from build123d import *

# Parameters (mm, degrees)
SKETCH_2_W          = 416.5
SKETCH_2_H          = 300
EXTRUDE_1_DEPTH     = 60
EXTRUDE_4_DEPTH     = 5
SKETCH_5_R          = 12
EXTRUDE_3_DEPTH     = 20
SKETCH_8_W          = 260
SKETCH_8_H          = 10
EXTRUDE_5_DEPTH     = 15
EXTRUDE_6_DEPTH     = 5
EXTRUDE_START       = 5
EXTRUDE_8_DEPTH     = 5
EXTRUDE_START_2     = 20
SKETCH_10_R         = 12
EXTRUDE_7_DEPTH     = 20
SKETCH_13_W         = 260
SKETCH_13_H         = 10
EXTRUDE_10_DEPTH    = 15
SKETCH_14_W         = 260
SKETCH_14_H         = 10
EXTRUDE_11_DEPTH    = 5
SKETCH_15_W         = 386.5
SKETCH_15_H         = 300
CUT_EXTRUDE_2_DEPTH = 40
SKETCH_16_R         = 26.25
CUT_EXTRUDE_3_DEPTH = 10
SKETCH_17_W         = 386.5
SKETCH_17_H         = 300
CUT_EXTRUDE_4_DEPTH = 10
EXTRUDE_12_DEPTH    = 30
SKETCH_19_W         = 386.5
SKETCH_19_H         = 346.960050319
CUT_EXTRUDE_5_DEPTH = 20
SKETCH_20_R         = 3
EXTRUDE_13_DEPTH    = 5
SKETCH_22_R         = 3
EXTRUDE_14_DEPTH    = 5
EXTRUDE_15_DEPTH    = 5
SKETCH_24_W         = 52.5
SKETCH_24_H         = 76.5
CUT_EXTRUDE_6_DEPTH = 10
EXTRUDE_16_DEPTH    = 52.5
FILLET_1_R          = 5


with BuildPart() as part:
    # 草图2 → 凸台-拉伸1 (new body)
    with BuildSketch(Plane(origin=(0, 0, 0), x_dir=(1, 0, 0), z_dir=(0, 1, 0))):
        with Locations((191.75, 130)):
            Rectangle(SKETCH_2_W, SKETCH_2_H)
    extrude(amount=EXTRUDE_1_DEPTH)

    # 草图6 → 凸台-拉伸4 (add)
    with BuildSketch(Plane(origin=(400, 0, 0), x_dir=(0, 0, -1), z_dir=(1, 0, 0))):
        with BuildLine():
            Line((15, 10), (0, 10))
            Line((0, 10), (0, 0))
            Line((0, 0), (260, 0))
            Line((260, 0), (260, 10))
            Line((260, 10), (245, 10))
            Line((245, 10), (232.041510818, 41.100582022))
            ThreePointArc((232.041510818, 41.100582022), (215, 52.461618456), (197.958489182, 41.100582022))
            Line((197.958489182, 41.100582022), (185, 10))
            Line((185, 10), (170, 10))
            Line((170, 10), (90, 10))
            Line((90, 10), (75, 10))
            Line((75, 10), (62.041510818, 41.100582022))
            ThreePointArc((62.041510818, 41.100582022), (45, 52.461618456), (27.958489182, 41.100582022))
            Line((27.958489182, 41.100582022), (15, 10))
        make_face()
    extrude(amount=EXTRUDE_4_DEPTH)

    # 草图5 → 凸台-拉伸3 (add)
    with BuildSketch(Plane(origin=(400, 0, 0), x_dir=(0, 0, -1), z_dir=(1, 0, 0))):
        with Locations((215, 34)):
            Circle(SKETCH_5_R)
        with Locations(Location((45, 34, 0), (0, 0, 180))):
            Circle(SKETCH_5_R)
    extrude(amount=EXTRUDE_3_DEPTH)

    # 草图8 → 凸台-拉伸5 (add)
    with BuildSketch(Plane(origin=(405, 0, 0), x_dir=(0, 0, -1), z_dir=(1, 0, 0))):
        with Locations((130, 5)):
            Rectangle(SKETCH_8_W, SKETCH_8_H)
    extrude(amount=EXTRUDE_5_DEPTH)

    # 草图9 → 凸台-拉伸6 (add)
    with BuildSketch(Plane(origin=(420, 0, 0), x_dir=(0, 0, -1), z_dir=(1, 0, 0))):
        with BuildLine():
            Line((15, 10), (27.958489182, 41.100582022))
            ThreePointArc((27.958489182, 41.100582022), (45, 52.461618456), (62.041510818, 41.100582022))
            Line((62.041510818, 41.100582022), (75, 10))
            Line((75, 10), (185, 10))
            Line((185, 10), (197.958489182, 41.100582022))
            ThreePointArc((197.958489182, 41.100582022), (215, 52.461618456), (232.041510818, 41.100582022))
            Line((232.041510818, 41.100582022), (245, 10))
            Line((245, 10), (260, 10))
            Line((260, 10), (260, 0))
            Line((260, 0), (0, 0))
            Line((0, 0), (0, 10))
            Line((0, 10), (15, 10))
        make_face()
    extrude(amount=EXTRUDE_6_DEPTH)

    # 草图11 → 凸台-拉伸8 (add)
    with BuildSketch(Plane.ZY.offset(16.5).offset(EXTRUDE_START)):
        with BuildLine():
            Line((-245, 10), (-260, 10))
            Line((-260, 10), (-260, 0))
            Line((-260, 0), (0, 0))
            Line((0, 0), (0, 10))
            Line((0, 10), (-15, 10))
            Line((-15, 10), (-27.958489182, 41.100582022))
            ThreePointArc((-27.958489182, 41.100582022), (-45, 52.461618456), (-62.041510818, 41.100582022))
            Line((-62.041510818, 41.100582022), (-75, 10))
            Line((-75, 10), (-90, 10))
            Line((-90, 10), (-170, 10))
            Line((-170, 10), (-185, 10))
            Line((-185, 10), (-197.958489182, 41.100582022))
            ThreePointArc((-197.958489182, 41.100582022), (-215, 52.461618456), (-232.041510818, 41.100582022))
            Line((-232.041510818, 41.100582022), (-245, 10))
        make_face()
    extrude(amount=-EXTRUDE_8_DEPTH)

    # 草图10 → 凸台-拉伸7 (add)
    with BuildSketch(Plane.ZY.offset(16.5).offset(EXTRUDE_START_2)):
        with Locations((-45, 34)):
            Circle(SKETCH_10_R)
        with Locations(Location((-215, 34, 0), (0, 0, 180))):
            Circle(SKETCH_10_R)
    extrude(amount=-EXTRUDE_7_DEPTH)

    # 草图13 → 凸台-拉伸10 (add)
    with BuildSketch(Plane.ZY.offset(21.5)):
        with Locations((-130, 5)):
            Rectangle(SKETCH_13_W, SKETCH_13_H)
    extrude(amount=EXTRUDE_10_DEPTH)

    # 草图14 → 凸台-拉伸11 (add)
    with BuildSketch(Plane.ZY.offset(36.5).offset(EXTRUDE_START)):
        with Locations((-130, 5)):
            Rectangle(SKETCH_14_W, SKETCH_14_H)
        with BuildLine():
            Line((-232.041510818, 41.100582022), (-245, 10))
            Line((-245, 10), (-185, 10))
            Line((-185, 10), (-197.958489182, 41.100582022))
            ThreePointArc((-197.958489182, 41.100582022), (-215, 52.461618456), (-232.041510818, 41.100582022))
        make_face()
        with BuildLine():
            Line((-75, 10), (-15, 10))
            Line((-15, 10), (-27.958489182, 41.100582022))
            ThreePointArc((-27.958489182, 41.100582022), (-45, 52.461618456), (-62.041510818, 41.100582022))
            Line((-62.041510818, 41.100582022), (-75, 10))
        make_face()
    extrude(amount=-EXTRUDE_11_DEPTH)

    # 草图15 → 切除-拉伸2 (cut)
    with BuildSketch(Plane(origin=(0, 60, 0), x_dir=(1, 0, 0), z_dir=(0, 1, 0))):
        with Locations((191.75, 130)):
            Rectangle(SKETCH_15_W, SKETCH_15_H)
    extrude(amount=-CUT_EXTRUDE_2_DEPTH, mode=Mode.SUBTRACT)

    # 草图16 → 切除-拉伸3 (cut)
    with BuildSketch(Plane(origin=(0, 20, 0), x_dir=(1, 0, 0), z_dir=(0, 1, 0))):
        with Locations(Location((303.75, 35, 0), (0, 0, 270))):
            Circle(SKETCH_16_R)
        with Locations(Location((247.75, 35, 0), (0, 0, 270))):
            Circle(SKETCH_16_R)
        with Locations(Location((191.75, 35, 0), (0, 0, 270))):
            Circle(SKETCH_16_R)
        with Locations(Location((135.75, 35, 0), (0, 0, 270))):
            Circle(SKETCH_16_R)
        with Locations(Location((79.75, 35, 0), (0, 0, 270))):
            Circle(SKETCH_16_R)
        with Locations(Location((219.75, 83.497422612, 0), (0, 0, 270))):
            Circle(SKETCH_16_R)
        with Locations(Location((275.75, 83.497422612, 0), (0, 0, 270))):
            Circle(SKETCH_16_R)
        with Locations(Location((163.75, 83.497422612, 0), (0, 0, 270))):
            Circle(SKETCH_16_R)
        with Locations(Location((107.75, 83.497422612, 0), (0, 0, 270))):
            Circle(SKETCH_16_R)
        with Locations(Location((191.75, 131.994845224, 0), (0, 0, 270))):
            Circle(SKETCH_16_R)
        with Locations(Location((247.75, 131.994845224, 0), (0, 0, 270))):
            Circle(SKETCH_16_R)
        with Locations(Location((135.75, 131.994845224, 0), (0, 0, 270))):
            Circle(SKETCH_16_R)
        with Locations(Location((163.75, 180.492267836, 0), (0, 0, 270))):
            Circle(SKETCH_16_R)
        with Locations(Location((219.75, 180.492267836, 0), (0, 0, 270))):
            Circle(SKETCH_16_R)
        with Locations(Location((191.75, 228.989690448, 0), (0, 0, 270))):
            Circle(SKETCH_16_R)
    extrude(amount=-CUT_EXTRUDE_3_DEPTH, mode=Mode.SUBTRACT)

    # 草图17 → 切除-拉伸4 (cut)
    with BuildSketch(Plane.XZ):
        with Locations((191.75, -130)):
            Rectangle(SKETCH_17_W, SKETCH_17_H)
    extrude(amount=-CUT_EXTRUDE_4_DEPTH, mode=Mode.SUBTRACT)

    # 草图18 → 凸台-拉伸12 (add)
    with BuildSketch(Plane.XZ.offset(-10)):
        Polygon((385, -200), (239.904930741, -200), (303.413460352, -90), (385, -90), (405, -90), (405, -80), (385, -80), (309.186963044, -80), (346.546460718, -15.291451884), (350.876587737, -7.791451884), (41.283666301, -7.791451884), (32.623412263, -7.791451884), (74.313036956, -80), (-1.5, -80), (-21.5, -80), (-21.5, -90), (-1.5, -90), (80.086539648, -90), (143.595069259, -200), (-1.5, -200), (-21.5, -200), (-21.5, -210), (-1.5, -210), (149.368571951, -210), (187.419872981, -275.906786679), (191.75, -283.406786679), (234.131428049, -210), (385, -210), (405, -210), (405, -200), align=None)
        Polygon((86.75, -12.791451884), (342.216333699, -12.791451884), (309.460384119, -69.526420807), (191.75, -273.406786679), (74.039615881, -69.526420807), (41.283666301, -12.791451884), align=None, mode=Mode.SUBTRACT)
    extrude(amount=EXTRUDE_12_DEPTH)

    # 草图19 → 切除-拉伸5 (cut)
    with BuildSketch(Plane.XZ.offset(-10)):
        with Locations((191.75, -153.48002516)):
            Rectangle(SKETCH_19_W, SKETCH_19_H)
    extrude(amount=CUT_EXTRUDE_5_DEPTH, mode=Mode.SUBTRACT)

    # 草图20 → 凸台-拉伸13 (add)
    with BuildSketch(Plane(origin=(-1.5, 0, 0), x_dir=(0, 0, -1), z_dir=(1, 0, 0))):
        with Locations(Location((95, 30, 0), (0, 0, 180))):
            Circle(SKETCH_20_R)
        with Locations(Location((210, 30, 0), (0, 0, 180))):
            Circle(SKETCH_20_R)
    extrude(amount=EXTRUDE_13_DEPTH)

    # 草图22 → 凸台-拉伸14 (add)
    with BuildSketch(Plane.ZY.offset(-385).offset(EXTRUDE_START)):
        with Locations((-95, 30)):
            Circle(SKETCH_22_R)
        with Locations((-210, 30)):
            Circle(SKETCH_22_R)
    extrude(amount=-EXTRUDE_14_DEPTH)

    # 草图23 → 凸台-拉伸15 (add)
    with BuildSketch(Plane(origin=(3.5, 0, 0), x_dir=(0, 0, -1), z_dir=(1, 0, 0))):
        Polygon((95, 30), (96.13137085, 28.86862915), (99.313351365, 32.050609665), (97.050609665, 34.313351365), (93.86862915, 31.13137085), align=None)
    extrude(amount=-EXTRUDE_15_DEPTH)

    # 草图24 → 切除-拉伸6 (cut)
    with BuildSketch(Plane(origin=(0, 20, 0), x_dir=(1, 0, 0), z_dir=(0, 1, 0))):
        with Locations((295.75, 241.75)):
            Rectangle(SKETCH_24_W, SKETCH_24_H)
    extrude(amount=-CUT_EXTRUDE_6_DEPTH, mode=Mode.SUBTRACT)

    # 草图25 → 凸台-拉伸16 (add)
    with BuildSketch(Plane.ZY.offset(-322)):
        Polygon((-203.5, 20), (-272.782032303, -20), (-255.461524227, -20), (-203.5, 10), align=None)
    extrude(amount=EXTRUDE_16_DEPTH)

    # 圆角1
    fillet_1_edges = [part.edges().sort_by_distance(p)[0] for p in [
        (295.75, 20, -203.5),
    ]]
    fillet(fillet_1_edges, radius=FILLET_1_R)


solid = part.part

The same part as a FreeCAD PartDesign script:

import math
import FreeCAD as App
import Part
import Sketcher
from FreeCAD import Vector
Q = App.Units.Quantity


def edges_at(feature, points):
    """Names of the edges that pass closest to the given points."""
    edges = feature.Shape.Edges
    near = lambda p: min(range(len(edges)), key=lambda i: edges[i].distToShape(Part.Vertex(*p))[0])
    return sorted({f"Edge{near(p) + 1}" for p in points})


def add_polygon(sketch, points):
    """Adds a closed chain of lines whose ends are joined by coincident constraints."""
    first, n = sketch.GeometryCount, len(points)
    for a, b in zip(points, points[1:] + points[:1]):
        sketch.addGeometry(Part.LineSegment(App.Vector(*a, 0), App.Vector(*b, 0)), False)
    for i in range(n):
        sketch.addConstraint(Sketcher.Constraint("Coincident", first + i, 2, first + (i + 1) % n, 1))

doc = App.newDocument("Part")
body = doc.addObject("PartDesign::Body", "Body")

# Sketch on XZ plane
sketch1 = doc.addObject("Sketcher::SketchObject", "Sketch")
body.addObject(sketch1)
sketch1.AttachmentSupport = (doc.XZ_Plane, [""])
sketch1.MapMode = "FlatFace"
add_polygon(sketch1, [(-16, -280), (-16, 20), (400, 20), (400, -280)])  # lines 0-3
sketch1.addConstraint([
    Sketcher.Constraint("Vertical", 0),
    Sketcher.Constraint("Horizontal", 1),
    Sketcher.Constraint("Vertical", 2),
    Sketcher.Constraint("Horizontal", 3),
    Sketcher.Constraint("DistanceY", 0, 1, 0, 2, 300.0),
    Sketcher.Constraint("DistanceX", 1, 1, 1, 2, 416.5),
    Sketcher.Constraint("DistanceY", -1, 1, 0, 2, 20.0),
    Sketcher.Constraint("DistanceX", -1, 1, 1, 2, 400.0),
])
pad1 = doc.addObject("PartDesign::Pad", "Pad")
body.addObject(pad1)
pad1.Profile = sketch1
pad1.Length = 60
pad1.Reversed = True

# Sketch on YZ plane
sketch2 = doc.addObject("Sketcher::SketchObject", "Sketch001")
body.addObject(sketch2)
sketch2.AttachmentSupport = (doc.YZ_Plane, [""])
sketch2.MapMode = "FlatFace"
sketch2.AttachmentOffset = App.Placement(Vector(0, 0, 400), App.Rotation())
sketch2.addGeometry([
    Part.LineSegment(Vector(10, -15, 0), Vector(10, 0, 0)),  # 0
    Part.LineSegment(Vector(10, 0, 0), Vector(0, 0, 0)),  # 1
    Part.LineSegment(Vector(0, 0, 0), Vector(0, -260, 0)),  # 2
    Part.LineSegment(Vector(0, -260, 0), Vector(10, -260, 0)),  # 3
    Part.LineSegment(Vector(10, -260, 0), Vector(10, -245, 0)),  # 4
    Part.LineSegment(Vector(10, -245, 0), Vector(41, -232, 0)),  # 5
    Part.ArcOfCircle(Part.Circle(Vector(34, -215, 0), Vector(0, 0, 1), 18), math.radians(-67), math.radians(67)),  # 6
    Part.LineSegment(Vector(41, -198, 0), Vector(10, -185, 0)),  # 7
    Part.LineSegment(Vector(10, -185, 0), Vector(10, -75, 0)),  # 8
    Part.LineSegment(Vector(10, -75, 0), Vector(41, -62, 0)),  # 9
    Part.ArcOfCircle(Part.Circle(Vector(34, -45, 0), Vector(0, 0, 1), 18), math.radians(-67), math.radians(67)),  # 10
    Part.LineSegment(Vector(41, -28, 0), Vector(10, -15, 0)),  # 11
], False)
sketch2.addConstraint([
    Sketcher.Constraint("Coincident", 0, 2, 1, 1),
    Sketcher.Constraint("Coincident", 1, 2, 2, 1),
    Sketcher.Constraint("Coincident", 2, 2, 3, 1),
    Sketcher.Constraint("Coincident", 3, 2, 4, 1),
    Sketcher.Constraint("Coincident", 4, 2, 5, 1),
    Sketcher.Constraint("Tangent", 5, 2, 6, 1),
    Sketcher.Constraint("Tangent", 6, 2, 7, 1),
    Sketcher.Constraint("Coincident", 7, 2, 8, 1),
    Sketcher.Constraint("Coincident", 8, 2, 9, 1),
    Sketcher.Constraint("Tangent", 9, 2, 10, 1),
    Sketcher.Constraint("Tangent", 10, 2, 11, 1),
    Sketcher.Constraint("Coincident", 11, 2, 0, 1),
    Sketcher.Constraint("Vertical", 0),
    Sketcher.Constraint("Horizontal", 1),
    Sketcher.Constraint("Vertical", 2),
    Sketcher.Constraint("Horizontal", 3),
    Sketcher.Constraint("Vertical", 4),
    Sketcher.Constraint("Vertical", 8),
    Sketcher.Constraint("Coincident", 1, 2, -1, 1),
    Sketcher.Constraint("Equal", 6, 10),
    Sketcher.Constraint("Parallel", 5, 9),
    Sketcher.Constraint("Parallel", 7, 11),
    Sketcher.Constraint("Vertical", 6, 3, 10, 3),
    Sketcher.Constraint("Vertical", 0, 2, 3, 2),
    Sketcher.Constraint("Vertical", 5, 2, 6, 2),
    Sketcher.Constraint("Vertical", 4, 2, 7, 2),
    Sketcher.Constraint("Equal", 0, 4),
    Sketcher.Constraint("DistanceX", 1, 2, 1, 1, 10.0),
    Sketcher.Constraint("DistanceY", 0, 1, 0, 2, 15.0),
    Sketcher.Constraint("DistanceY", 2, 2, 2, 1, 260.0),
    Sketcher.Constraint("DistanceY", 8, 1, 8, 2, 110.0),
    Sketcher.Constraint("DistanceX", -1, 1, 6, 3, 34.0),
    Sketcher.Constraint("Radius", 6, 18.461618),
])
pad2 = doc.addObject("PartDesign::Pad", "Pad001")
body.addObject(pad2)
pad2.Profile = sketch2
pad2.Length = 5

# Sketch on YZ plane
sketch3 = doc.addObject("Sketcher::SketchObject", "Sketch002")
body.addObject(sketch3)
sketch3.AttachmentSupport = (doc.YZ_Plane, [""])
sketch3.MapMode = "FlatFace"
sketch3.AttachmentOffset = App.Placement(Vector(0, 0, 400), App.Rotation())
sketch3.addGeometry([
    Part.Circle(Vector(34, -215, 0), Vector(0, 0, 1), 12),
    Part.Circle(Vector(34, -45, 0), Vector(0, 0, 1), 12),
], False)
sketch3.addConstraint([
    Sketcher.Constraint("Equal", 0, 1),
    Sketcher.Constraint("Vertical", 0, 3, 1, 3),
    Sketcher.Constraint("Diameter", 0, 24.0),
    Sketcher.Constraint("DistanceX", -1, 1, 0, 3, 34.0),
    Sketcher.Constraint("DistanceY", 0, 3, -1, 1, 215.0),
    Sketcher.Constraint("DistanceY", 1, 3, -1, 1, 45.0),
])
pad3 = doc.addObject("PartDesign::Pad", "Pad002")
body.addObject(pad3)
pad3.Profile = sketch3
pad3.Length = 20

# Sketch on YZ plane
sketch4 = doc.addObject("Sketcher::SketchObject", "Sketch003")
body.addObject(sketch4)
sketch4.AttachmentSupport = (doc.YZ_Plane, [""])
sketch4.MapMode = "FlatFace"
sketch4.AttachmentOffset = App.Placement(Vector(0, 0, 405), App.Rotation())
add_polygon(sketch4, [(10, 0), (0, 0), (0, -260), (10, -260)])  # lines 0-3
sketch4.addConstraint([
    Sketcher.Constraint("Horizontal", 0),
    Sketcher.Constraint("Vertical", 1),
    Sketcher.Constraint("Horizontal", 2),
    Sketcher.Constraint("Vertical", 3),
    Sketcher.Constraint("Coincident", 0, 2, -1, 1),
    Sketcher.Constraint("DistanceX", 0, 2, 0, 1, 10.0),
    Sketcher.Constraint("DistanceY", 1, 2, 1, 1, 260.0),
])
pad4 = doc.addObject("PartDesign::Pad", "Pad003")
body.addObject(pad4)
pad4.Profile = sketch4
pad4.Length = 15

# Sketch on YZ plane
sketch5 = doc.addObject("Sketcher::SketchObject", "Sketch004")
body.addObject(sketch5)
sketch5.AttachmentSupport = (doc.YZ_Plane, [""])
sketch5.MapMode = "FlatFace"
sketch5.AttachmentOffset = App.Placement(Vector(0, 0, 420), App.Rotation())
sketch5.addGeometry([
    Part.LineSegment(Vector(41, -28, 0), Vector(10, -15, 0)),  # 0
    Part.LineSegment(Vector(10, -15, 0), Vector(10, 0, 0)),  # 1
    Part.LineSegment(Vector(10, 0, 0), Vector(0, 0, 0)),  # 2
    Part.LineSegment(Vector(0, 0, 0), Vector(0, -260, 0)),  # 3
    Part.LineSegment(Vector(0, -260, 0), Vector(10, -260, 0)),  # 4
    Part.LineSegment(Vector(10, -260, 0), Vector(10, -245, 0)),  # 5
    Part.LineSegment(Vector(10, -245, 0), Vector(41, -232, 0)),  # 6
    Part.ArcOfCircle(Part.Circle(Vector(34, -215, 0), Vector(0, 0, 1), 18), math.radians(-67), math.radians(67)),  # 7
    Part.LineSegment(Vector(41, -198, 0), Vector(10, -185, 0)),  # 8
    Part.LineSegment(Vector(10, -185, 0), Vector(10, -75, 0)),  # 9
    Part.LineSegment(Vector(10, -75, 0), Vector(41, -62, 0)),  # 10
    Part.ArcOfCircle(Part.Circle(Vector(34, -45, 0), Vector(0, 0, 1), 18), math.radians(-67), math.radians(67)),  # 11
], False)
sketch5.addConstraint([
    Sketcher.Constraint("Coincident", 0, 2, 1, 1),
    Sketcher.Constraint("Coincident", 1, 2, 2, 1),
    Sketcher.Constraint("Coincident", 2, 2, 3, 1),
    Sketcher.Constraint("Coincident", 3, 2, 4, 1),
    Sketcher.Constraint("Coincident", 4, 2, 5, 1),
    Sketcher.Constraint("Coincident", 5, 2, 6, 1),
    Sketcher.Constraint("Tangent", 6, 2, 7, 1),
    Sketcher.Constraint("Tangent", 7, 2, 8, 1),
    Sketcher.Constraint("Coincident", 8, 2, 9, 1),
    Sketcher.Constraint("Coincident", 9, 2, 10, 1),
    Sketcher.Constraint("Tangent", 10, 2, 11, 1),
    Sketcher.Constraint("Tangent", 11, 2, 0, 1),
    Sketcher.Constraint("Vertical", 1),
    Sketcher.Constraint("Horizontal", 2),
    Sketcher.Constraint("Vertical", 3),
    Sketcher.Constraint("Horizontal", 4),
    Sketcher.Constraint("Vertical", 5),
    Sketcher.Constraint("Vertical", 9),
    Sketcher.Constraint("Coincident", 2, 2, -1, 1),
    Sketcher.Constraint("Equal", 7, 11),
    Sketcher.Constraint("Parallel", 0, 8),
    Sketcher.Constraint("Parallel", 6, 10),
    Sketcher.Constraint("Vertical", 7, 3, 11, 3),
    Sketcher.Constraint("Vertical", 1, 2, 4, 2),
    Sketcher.Constraint("Vertical", 6, 2, 7, 2),
    Sketcher.Constraint("Vertical", 5, 2, 8, 2),
    Sketcher.Constraint("Equal", 1, 5),
    Sketcher.Constraint("DistanceX", 2, 2, 2, 1, 10.0),
    Sketcher.Constraint("DistanceY", 1, 1, 1, 2, 15.0),
    Sketcher.Constraint("DistanceY", 3, 2, 3, 1, 260.0),
    Sketcher.Constraint("DistanceY", 9, 1, 9, 2, 110.0),
    Sketcher.Constraint("DistanceX", -1, 1, 7, 3, 34.0),
    Sketcher.Constraint("Radius", 7, 18.461618),
])
pad5 = doc.addObject("PartDesign::Pad", "Pad004")
body.addObject(pad5)
pad5.Profile = sketch5
pad5.Length = 5

# Sketch on YZ plane
sketch6 = doc.addObject("Sketcher::SketchObject", "Sketch005")
body.addObject(sketch6)
sketch6.AttachmentSupport = (doc.YZ_Plane, [""])
sketch6.MapMode = "FlatFace"
sketch6.AttachmentOffset = App.Placement(Vector(0, 0, -21.5), App.Rotation())
sketch6.addGeometry([
    Part.LineSegment(Vector(10, -245, 0), Vector(10, -260, 0)),  # 0
    Part.LineSegment(Vector(10, -260, 0), Vector(0, -260, 0)),  # 1
    Part.LineSegment(Vector(0, -260, 0), Vector(0, 0, 0)),  # 2
    Part.LineSegment(Vector(0, 0, 0), Vector(10, 0, 0)),  # 3
    Part.LineSegment(Vector(10, 0, 0), Vector(10, -15, 0)),  # 4
    Part.LineSegment(Vector(10, -15, 0), Vector(41, -28, 0)),  # 5
    Part.ArcOfCircle(Part.Circle(Vector(34, -45, 0), Vector(0, 0, 1), 18), math.radians(-67), math.radians(67)),  # 6
    Part.LineSegment(Vector(41, -62, 0), Vector(10, -75, 0)),  # 7
    Part.LineSegment(Vector(10, -75, 0), Vector(10, -185, 0)),  # 8
    Part.LineSegment(Vector(10, -185, 0), Vector(41, -198, 0)),  # 9
    Part.ArcOfCircle(Part.Circle(Vector(34, -215, 0), Vector(0, 0, 1), 18), math.radians(-67), math.radians(67)),  # 10
    Part.LineSegment(Vector(41, -232, 0), Vector(10, -245, 0)),  # 11
], False)
sketch6.addConstraint([
    Sketcher.Constraint("Coincident", 0, 2, 1, 1),
    Sketcher.Constraint("Coincident", 1, 2, 2, 1),
    Sketcher.Constraint("Coincident", 2, 2, 3, 1),
    Sketcher.Constraint("Coincident", 3, 2, 4, 1),
    Sketcher.Constraint("Coincident", 4, 2, 5, 1),
    Sketcher.Constraint("Tangent", 5, 2, 6, 2),
    Sketcher.Constraint("Tangent", 6, 1, 7, 1),
    Sketcher.Constraint("Coincident", 7, 2, 8, 1),
    Sketcher.Constraint("Coincident", 8, 2, 9, 1),
    Sketcher.Constraint("Tangent", 9, 2, 10, 2),
    Sketcher.Constraint("Tangent", 10, 1, 11, 1),
    Sketcher.Constraint("Coincident", 11, 2, 0, 1),
    Sketcher.Constraint("Vertical", 0),
    Sketcher.Constraint("Horizontal", 1),
    Sketcher.Constraint("Vertical", 2),
    Sketcher.Constraint("Horizontal", 3),
    Sketcher.Constraint("Vertical", 4),
    Sketcher.Constraint("Vertical", 8),
    Sketcher.Constraint("Coincident", 2, 2, -1, 1),
    Sketcher.Constraint("Equal", 6, 10),
    Sketcher.Constraint("Parallel", 5, 9),
    Sketcher.Constraint("Parallel", 7, 11),
    Sketcher.Constraint("Vertical", 6, 3, 10, 3),
    Sketcher.Constraint("Vertical", 0, 2, 3, 2),
    Sketcher.Constraint("Vertical", 5, 2, 6, 1),
    Sketcher.Constraint("Vertical", 4, 2, 7, 2),
    Sketcher.Constraint("Equal", 0, 4),
    Sketcher.Constraint("DistanceX", 1, 2, 1, 1, 10.0),
    Sketcher.Constraint("DistanceY", 0, 2, 0, 1, 15.0),
    Sketcher.Constraint("DistanceY", 2, 1, 2, 2, 260.0),
    Sketcher.Constraint("DistanceY", 8, 2, 8, 1, 110.0),
    Sketcher.Constraint("DistanceX", -1, 1, 6, 3, 34.0),
    Sketcher.Constraint("Radius", 6, 18.461618),
])
pad6 = doc.addObject("PartDesign::Pad", "Pad005")
body.addObject(pad6)
pad6.Profile = sketch6
pad6.Length = 5

# Sketch on YZ plane
sketch7 = doc.addObject("Sketcher::SketchObject", "Sketch006")
body.addObject(sketch7)
sketch7.AttachmentSupport = (doc.YZ_Plane, [""])
sketch7.MapMode = "FlatFace"
sketch7.AttachmentOffset = App.Placement(Vector(0, 0, -36.5), App.Rotation())
sketch7.addGeometry([
    Part.Circle(Vector(34, -45, 0), Vector(0, 0, 1), 12),
    Part.Circle(Vector(34, -215, 0), Vector(0, 0, 1), 12),
], False)
sketch7.addConstraint([
    Sketcher.Constraint("Equal", 0, 1),
    Sketcher.Constraint("Vertical", 0, 3, 1, 3),
    Sketcher.Constraint("Diameter", 0, 24.0),
    Sketcher.Constraint("DistanceX", -1, 1, 0, 3, 34.0),
    Sketcher.Constraint("DistanceY", 0, 3, -1, 1, 45.0),
    Sketcher.Constraint("DistanceY", 1, 3, -1, 1, 215.0),
])
pad7 = doc.addObject("PartDesign::Pad", "Pad006")
body.addObject(pad7)
pad7.Profile = sketch7
pad7.Length = 20

# Sketch on YZ plane
sketch8 = doc.addObject("Sketcher::SketchObject", "Sketch007")
body.addObject(sketch8)
sketch8.AttachmentSupport = (doc.YZ_Plane, [""])
sketch8.MapMode = "FlatFace"
sketch8.AttachmentOffset = App.Placement(Vector(0, 0, -21.5), App.Rotation())
add_polygon(sketch8, [(10, -260), (0, -260), (0, 0), (10, 0)])  # lines 0-3
sketch8.addConstraint([
    Sketcher.Constraint("Horizontal", 0),
    Sketcher.Constraint("Vertical", 1),
    Sketcher.Constraint("Horizontal", 2),
    Sketcher.Constraint("Vertical", 3),
    Sketcher.Constraint("Coincident", 1, 2, -1, 1),
    Sketcher.Constraint("DistanceX", 0, 2, 0, 1, 10.0),
    Sketcher.Constraint("DistanceY", 1, 1, 1, 2, 260.0),
])
pad8 = doc.addObject("PartDesign::Pad", "Pad007")
body.addObject(pad8)
pad8.Profile = sketch8
pad8.Length = 15
pad8.Reversed = True

# Sketch on YZ plane
sketch9 = doc.addObject("Sketcher::SketchObject", "Sketch008")
body.addObject(sketch9)
sketch9.AttachmentSupport = (doc.YZ_Plane, [""])
sketch9.MapMode = "FlatFace"
sketch9.AttachmentOffset = App.Placement(Vector(0, 0, -41.5), App.Rotation())
sketch9.addGeometry([
    Part.LineSegment(Vector(10, -260, 0), Vector(0, -260, 0)),  # 0
    Part.LineSegment(Vector(0, -260, 0), Vector(0, 0, 0)),  # 1
    Part.LineSegment(Vector(0, 0, 0), Vector(10, 0, 0)),  # 2
    Part.LineSegment(Vector(10, 0, 0), Vector(10, -15, 0)),  # 3
    Part.LineSegment(Vector(10, -15, 0), Vector(41, -28, 0)),  # 4
    Part.ArcOfCircle(Part.Circle(Vector(34, -45, 0), Vector(0, 0, 1), 18), math.radians(-67), math.radians(67)),  # 5
    Part.LineSegment(Vector(41, -62, 0), Vector(10, -75, 0)),  # 6
    Part.LineSegment(Vector(10, -75, 0), Vector(10, -185, 0)),  # 7
    Part.LineSegment(Vector(10, -185, 0), Vector(41, -198, 0)),  # 8
    Part.ArcOfCircle(Part.Circle(Vector(34, -215, 0), Vector(0, 0, 1), 18), math.radians(-67), math.radians(67)),  # 9
    Part.LineSegment(Vector(41, -232, 0), Vector(10, -245, 0)),  # 10
    Part.LineSegment(Vector(10, -245, 0), Vector(10, -260, 0)),  # 11
], False)
sketch9.addConstraint([
    Sketcher.Constraint("Coincident", 0, 2, 1, 1),
    Sketcher.Constraint("Coincident", 1, 2, 2, 1),
    Sketcher.Constraint("Coincident", 2, 2, 3, 1),
    Sketcher.Constraint("Coincident", 3, 2, 4, 1),
    Sketcher.Constraint("Tangent", 4, 2, 5, 2),
    Sketcher.Constraint("Tangent", 5, 1, 6, 1),
    Sketcher.Constraint("Coincident", 6, 2, 7, 1),
    Sketcher.Constraint("Coincident", 7, 2, 8, 1),
    Sketcher.Constraint("Tangent", 8, 2, 9, 2),
    Sketcher.Constraint("Tangent", 9, 1, 10, 1),
    Sketcher.Constraint("Coincident", 10, 2, 11, 1),
    Sketcher.Constraint("Coincident", 11, 2, 0, 1),
    Sketcher.Constraint("Horizontal", 0),
    Sketcher.Constraint("Vertical", 1),
    Sketcher.Constraint("Horizontal", 2),
    Sketcher.Constraint("Vertical", 3),
    Sketcher.Constraint("Vertical", 7),
    Sketcher.Constraint("Vertical", 11),
    Sketcher.Constraint("Coincident", 1, 2, -1, 1),
    Sketcher.Constraint("Equal", 5, 9),
    Sketcher.Constraint("Parallel", 4, 8),
    Sketcher.Constraint("Parallel", 6, 10),
    Sketcher.Constraint("Vertical", 5, 3, 9, 3),
    Sketcher.Constraint("Vertical", 4, 2, 5, 1),
    Sketcher.Constraint("Vertical", 3, 2, 6, 2),
    Sketcher.Constraint("Vertical", 7, 2, 10, 2),
    Sketcher.Constraint("Equal", 3, 11),
    Sketcher.Constraint("DistanceX", 0, 2, 0, 1, 10.0),
    Sketcher.Constraint("DistanceY", 1, 1, 1, 2, 260.0),
    Sketcher.Constraint("DistanceY", 3, 2, 3, 1, 15.0),
    Sketcher.Constraint("DistanceY", 7, 2, 7, 1, 110.0),
    Sketcher.Constraint("DistanceX", -1, 1, 5, 3, 34.0),
    Sketcher.Constraint("Radius", 5, 18.461618),
])
pad9 = doc.addObject("PartDesign::Pad", "Pad008")
body.addObject(pad9)
pad9.Profile = sketch9
pad9.Length = 5

# Sketch on XZ plane
sketch10 = doc.addObject("Sketcher::SketchObject", "Sketch009")
body.addObject(sketch10)
sketch10.AttachmentSupport = (doc.XZ_Plane, [""])
sketch10.MapMode = "FlatFace"
sketch10.AttachmentOffset = App.Placement(Vector(0, 0, -60), App.Rotation())
add_polygon(sketch10, [(-2, -280), (-2, 20), (385, 20), (385, -280)])  # lines 0-3
sketch10.addConstraint([
    Sketcher.Constraint("Vertical", 0),
    Sketcher.Constraint("Horizontal", 1),
    Sketcher.Constraint("Vertical", 2),
    Sketcher.Constraint("Horizontal", 3),
    Sketcher.Constraint("DistanceY", 0, 1, 0, 2, 300.0),
    Sketcher.Constraint("DistanceX", 1, 1, 1, 2, 386.5),
    Sketcher.Constraint("DistanceY", -1, 1, 0, 2, 20.0),
    Sketcher.Constraint("DistanceX", -1, 1, 1, 2, 385.0),
])
pocket1 = doc.addObject("PartDesign::Pocket", "Pocket")
body.addObject(pocket1)
pocket1.Profile = sketch10
pocket1.Length = 40
pocket1.Reversed = True

# Sketch on XZ plane
sketch11 = doc.addObject("Sketcher::SketchObject", "Sketch010")
body.addObject(sketch11)
sketch11.AttachmentSupport = (doc.XZ_Plane, [""])
sketch11.MapMode = "FlatFace"
sketch11.AttachmentOffset = App.Placement(Vector(0, 0, -20), App.Rotation())
sketch11.addGeometry([
    Part.Circle(Vector(304, -35, 0), Vector(0, 0, 1), 26),  # 0
    Part.Circle(Vector(248, -35, 0), Vector(0, 0, 1), 26),  # 1
    Part.Circle(Vector(192, -35, 0), Vector(0, 0, 1), 26),  # 2
    Part.Circle(Vector(136, -35, 0), Vector(0, 0, 1), 26),  # 3
    Part.Circle(Vector(80, -35, 0), Vector(0, 0, 1), 26),  # 4
    Part.Circle(Vector(220, -83, 0), Vector(0, 0, 1), 26),  # 5
    Part.Circle(Vector(276, -83, 0), Vector(0, 0, 1), 26),  # 6
    Part.Circle(Vector(164, -83, 0), Vector(0, 0, 1), 26),  # 7
    Part.Circle(Vector(108, -83, 0), Vector(0, 0, 1), 26),  # 8
    Part.Circle(Vector(192, -132, 0), Vector(0, 0, 1), 26),  # 9
    Part.Circle(Vector(248, -132, 0), Vector(0, 0, 1), 26),  # 10
    Part.Circle(Vector(136, -132, 0), Vector(0, 0, 1), 26),  # 11
    Part.Circle(Vector(164, -180, 0), Vector(0, 0, 1), 26),  # 12
    Part.Circle(Vector(220, -180, 0), Vector(0, 0, 1), 26),  # 13
    Part.Circle(Vector(192, -229, 0), Vector(0, 0, 1), 26),  # 14
], False)
sketch11.addConstraint([
    Sketcher.Constraint("Equal", 0, 1),
    Sketcher.Constraint("Equal", 1, 2),
    Sketcher.Constraint("Equal", 2, 3),
    Sketcher.Constraint("Equal", 3, 4),
    Sketcher.Constraint("Equal", 4, 5),
    Sketcher.Constraint("Equal", 5, 6),
    Sketcher.Constraint("Equal", 6, 7),
    Sketcher.Constraint("Equal", 7, 8),
    Sketcher.Constraint("Equal", 8, 9),
    Sketcher.Constraint("Equal", 9, 10),
    Sketcher.Constraint("Equal", 10, 11),
    Sketcher.Constraint("Equal", 11, 12),
    Sketcher.Constraint("Equal", 12, 13),
    Sketcher.Constraint("Equal", 13, 14),
    Sketcher.Constraint("Horizontal", 0, 3, 1, 3),
    Sketcher.Constraint("Horizontal", 1, 3, 2, 3),
    Sketcher.Constraint("Horizontal", 2, 3, 3, 3),
    Sketcher.Constraint("Horizontal", 3, 3, 4, 3),
    Sketcher.Constraint("Horizontal", 5, 3, 6, 3),
    Sketcher.Constraint("Horizontal", 6, 3, 7, 3),
    Sketcher.Constraint("Horizontal", 7, 3, 8, 3),
    Sketcher.Constraint("Horizontal", 9, 3, 10, 3),
    Sketcher.Constraint("Horizontal", 10, 3, 11, 3),
    Sketcher.Constraint("Horizontal", 12, 3, 13, 3),
    Sketcher.Constraint("Vertical", 2, 3, 9, 3),
    Sketcher.Constraint("Vertical", 1, 3, 10, 3),
    Sketcher.Constraint("Vertical", 3, 3, 11, 3),
    Sketcher.Constraint("Vertical", 7, 3, 12, 3),
    Sketcher.Constraint("Vertical", 5, 3, 13, 3),
    Sketcher.Constraint("Vertical", 9, 3, 14, 3),
    Sketcher.Constraint("Diameter", 0, 52.5),
    Sketcher.Constraint("DistanceY", 0, 3, -1, 1, 35.0),
    Sketcher.Constraint("DistanceX", 1, 3, 0, 3, 56.0),
    Sketcher.Constraint("DistanceX", 2, 3, 1, 3, 56.0),
    Sketcher.Constraint("DistanceX", 3, 3, 2, 3, 56.0),
    Sketcher.Constraint("DistanceX", 4, 3, 3, 3, 56.0),
    Sketcher.Constraint("DistanceX", 5, 3, 1, 3, 28.0),
    Sketcher.Constraint("DistanceX", 5, 3, 6, 3, 56.0),
    Sketcher.Constraint("DistanceX", 7, 3, 5, 3, 56.0),
    Sketcher.Constraint("DistanceX", 8, 3, 7, 3, 56.0),
    Sketcher.Constraint("DistanceX", -1, 1, 0, 3, 303.75),
    Sketcher.Constraint("DistanceY", 14, 3, -1, 1, 228.98969),
    Sketcher.Constraint("DistanceY", 5, 3, -1, 1, 83.497423),
    Sketcher.Constraint("DistanceY", 9, 3, -1, 1, 131.994845),
    Sketcher.Constraint("DistanceY", 12, 3, -1, 1, 180.492268),
])
pocket2 = doc.addObject("PartDesign::Pocket", "Pocket001")
body.addObject(pocket2)
pocket2.Profile = sketch11
pocket2.Length = 10
pocket2.Reversed = True

# Sketch on XZ plane
sketch12 = doc.addObject("Sketcher::SketchObject", "Sketch011")
body.addObject(sketch12)
sketch12.AttachmentSupport = (doc.XZ_Plane, [""])
sketch12.MapMode = "FlatFace"
add_polygon(sketch12, [(-2, 20), (-2, -280), (385, -280), (385, 20)])  # lines 0-3
sketch12.addConstraint([
    Sketcher.Constraint("Vertical", 0),
    Sketcher.Constraint("Horizontal", 1),
    Sketcher.Constraint("Vertical", 2),
    Sketcher.Constraint("Horizontal", 3),
    Sketcher.Constraint("DistanceY", 0, 2, 0, 1, 300.0),
    Sketcher.Constraint("DistanceX", 1, 1, 1, 2, 386.5),
    Sketcher.Constraint("DistanceY", 0, 2, -1, 1, 280.0),
    Sketcher.Constraint("DistanceX", -1, 1, 1, 2, 385.0),
])
pocket3 = doc.addObject("PartDesign::Pocket", "Pocket002")
body.addObject(pocket3)
pocket3.Profile = sketch12
pocket3.Length = 10

# Sketch on XZ plane
sketch13 = doc.addObject("Sketcher::SketchObject", "Sketch012")
body.addObject(sketch13)
sketch13.AttachmentSupport = (doc.XZ_Plane, [""])
sketch13.MapMode = "FlatFace"
sketch13.AttachmentOffset = App.Placement(Vector(0, 0, -10), App.Rotation())
add_polygon(sketch13, [(240, -200), (303, -90), (405, -90), (405, -80), (309, -80), (347, -15), (351, -8), (33, -8), (74, -80), (-22, -80), (-22, -90), (80, -90), (144, -200), (-22, -200), (-22, -210), (149, -210), (187, -276), (192, -283), (234, -210), (405, -210), (405, -200)])  # lines 0-20
add_polygon(sketch13, [(41, -13), (342, -13), (309, -70), (192, -273), (74, -70)])  # lines 21-25
sketch13.addConstraint([
    Sketcher.Constraint("Horizontal", 1),
    Sketcher.Constraint("Vertical", 2),
    Sketcher.Constraint("Horizontal", 3),
    Sketcher.Constraint("Horizontal", 6),
    Sketcher.Constraint("Horizontal", 8),
    Sketcher.Constraint("Vertical", 9),
    Sketcher.Constraint("Horizontal", 10),
    Sketcher.Constraint("Horizontal", 12),
    Sketcher.Constraint("Vertical", 13),
    Sketcher.Constraint("Horizontal", 14),
    Sketcher.Constraint("Horizontal", 18),
    Sketcher.Constraint("Vertical", 19),
    Sketcher.Constraint("Horizontal", 20),
    Sketcher.Constraint("Horizontal", 21),
    Sketcher.Constraint("Parallel", 0, 4),
    Sketcher.Constraint("Parallel", 4, 5),
    Sketcher.Constraint("Parallel", 7, 11),
    Sketcher.Constraint("Parallel", 11, 15),
    Sketcher.Constraint("Parallel", 15, 16),
    Sketcher.Constraint("Parallel", 5, 17),
    Sketcher.Constraint("Parallel", 17, 22),
    Sketcher.Constraint("Parallel", 22, 23),
    Sketcher.Constraint("Parallel", 16, 24),
    Sketcher.Constraint("Parallel", 24, 25),
    Sketcher.Constraint("Horizontal", 3, 2, 7, 2),
    Sketcher.Constraint("Horizontal", 1, 2, 9, 2),
    Sketcher.Constraint("Horizontal", 14, 2, 17, 2),
    Sketcher.Constraint("Horizontal", 12, 2, 19, 2),
    Sketcher.Constraint("Horizontal", 22, 2, 24, 2),
    Sketcher.Constraint("Vertical", 9, 2, 12, 2),
    Sketcher.Constraint("Vertical", 2, 2, 18, 2),
    Sketcher.Constraint("Vertical", 16, 2, 23, 2),
    Sketcher.Constraint("Equal", 3, 8),
    Sketcher.Constraint("Equal", 1, 10),
    Sketcher.Constraint("Equal", 14, 18),
    Sketcher.Constraint("Equal", 12, 20),
    Sketcher.Constraint("Equal", 9, 13),
    Sketcher.Constraint("Equal", 5, 16),
    Sketcher.Constraint("DistanceY", 2, 1, 2, 2, 10.0),
    Sketcher.Constraint("Angle", 0, Q("60 deg")),
    Sketcher.Constraint("DistanceY", 0, 2, -1, 1, 90.0),
    Sketcher.Constraint("DistanceX", -1, 1, 1, 2, 405.0),
    Sketcher.Constraint("DistanceY", 11, 2, -1, 1, 200.0),
    Sketcher.Constraint("DistanceY", 21, 2, 5, 2, 5.0),
    Sketcher.Constraint("DistanceY", 16, 2, 23, 2, 10.0),
    Sketcher.Constraint("DistanceX", 8, 2, -1, 1, 21.5),
    Sketcher.Constraint("DistanceY", 4, 2, 5, 2, 7.5),
    Sketcher.Constraint("DistanceX", 0, 2, 4, 2, 43.133),
    Sketcher.Constraint("Distance", 22, 65.511899),
    Sketcher.Constraint("DistanceX", 1, 1, 1, 2, 101.58654),
    Sketcher.Constraint("DistanceX", 14, 1, 14, 2, 170.868572),
    Sketcher.Constraint("Distance", 7, 83.379249),
])
pad10 = doc.addObject("PartDesign::Pad", "Pad009")
body.addObject(pad10)
pad10.Profile = sketch13
pad10.Length = 30

# Sketch on XZ plane
sketch14 = doc.addObject("Sketcher::SketchObject", "Sketch013")
body.addObject(sketch14)
sketch14.AttachmentSupport = (doc.XZ_Plane, [""])
sketch14.MapMode = "FlatFace"
sketch14.AttachmentOffset = App.Placement(Vector(0, 0, -10), App.Rotation())
add_polygon(sketch14, [(-2, 20), (-2, -327), (385, -327), (385, 20)])  # lines 0-3
sketch14.addConstraint([
    Sketcher.Constraint("Vertical", 0),
    Sketcher.Constraint("Horizontal", 1),
    Sketcher.Constraint("Vertical", 2),
    Sketcher.Constraint("Horizontal", 3),
    Sketcher.Constraint("DistanceX", 1, 1, 1, 2, 386.5),
    Sketcher.Constraint("DistanceX", -1, 1, 1, 2, 385.0),
    Sketcher.Constraint("DistanceY", -1, 1, 2, 2, 20.0),
    Sketcher.Constraint("DistanceY", 0, 2, 0, 1, 346.96005),
])
pocket4 = doc.addObject("PartDesign::Pocket", "Pocket003")
body.addObject(pocket4)
pocket4.Profile = sketch14
pocket4.Length = 20
pocket4.Reversed = True

# Sketch on YZ plane
sketch15 = doc.addObject("Sketcher::SketchObject", "Sketch014")
body.addObject(sketch15)
sketch15.AttachmentSupport = (doc.YZ_Plane, [""])
sketch15.MapMode = "FlatFace"
sketch15.AttachmentOffset = App.Placement(Vector(0, 0, -1.5), App.Rotation())
sketch15.addGeometry([
    Part.Circle(Vector(30, -95, 0), Vector(0, 0, 1), 3),
    Part.Circle(Vector(30, -210, 0), Vector(0, 0, 1), 3),
], False)
sketch15.addConstraint([
    Sketcher.Constraint("Equal", 0, 1),
    Sketcher.Constraint("Vertical", 0, 3, 1, 3),
    Sketcher.Constraint("Diameter", 0, 6.0),
    Sketcher.Constraint("DistanceX", -1, 1, 0, 3, 30.0),
    Sketcher.Constraint("DistanceY", 0, 3, -1, 1, 95.0),
    Sketcher.Constraint("DistanceY", 1, 3, -1, 1, 210.0),
])
pad11 = doc.addObject("PartDesign::Pad", "Pad010")
body.addObject(pad11)
pad11.Profile = sketch15
pad11.Length = 5

# Sketch on YZ plane
sketch16 = doc.addObject("Sketcher::SketchObject", "Sketch015")
body.addObject(sketch16)
sketch16.AttachmentSupport = (doc.YZ_Plane, [""])
sketch16.MapMode = "FlatFace"
sketch16.AttachmentOffset = App.Placement(Vector(0, 0, 380), App.Rotation())
sketch16.addGeometry([
    Part.Circle(Vector(30, -95, 0), Vector(0, 0, 1), 3),
    Part.Circle(Vector(30, -210, 0), Vector(0, 0, 1), 3),
], False)
sketch16.addConstraint([
    Sketcher.Constraint("Equal", 0, 1),
    Sketcher.Constraint("Vertical", 0, 3, 1, 3),
    Sketcher.Constraint("Diameter", 0, 6.0),
    Sketcher.Constraint("DistanceX", -1, 1, 0, 3, 30.0),
    Sketcher.Constraint("DistanceY", 0, 3, -1, 1, 95.0),
    Sketcher.Constraint("DistanceY", 1, 3, -1, 1, 210.0),
])
pad12 = doc.addObject("PartDesign::Pad", "Pad011")
body.addObject(pad12)
pad12.Profile = sketch16
pad12.Length = 5

# Sketch on YZ plane
sketch17 = doc.addObject("Sketcher::SketchObject", "Sketch016")
body.addObject(sketch17)
sketch17.AttachmentSupport = (doc.YZ_Plane, [""])
sketch17.MapMode = "FlatFace"
sketch17.AttachmentOffset = App.Placement(Vector(0, 0, 3.5), App.Rotation())
add_polygon(sketch17, [(28.9, -96.1), (32.1, -99.3), (34.3, -97.1), (31.1, -93.9)])  # lines 0-3
sketch17.addConstraint([
    Sketcher.Constraint("Perpendicular", 0, 1),
    Sketcher.Constraint("Perpendicular", 1, 2),
    Sketcher.Constraint("Perpendicular", 2, 3),
    Sketcher.Constraint("Angle", 0, Q("-45 deg")),
    Sketcher.Constraint("Distance", 0, 4.5),
    Sketcher.Constraint("Distance", 1, 3.2),
    Sketcher.Constraint("DistanceX", -1, 1, 0, 2, 32.05061),
    Sketcher.Constraint("DistanceY", 0, 2, -1, 1, 99.313351),
])
pad13 = doc.addObject("PartDesign::Pad", "Pad012")
body.addObject(pad13)
pad13.Profile = sketch17
pad13.Length = 5
pad13.Reversed = True

# Sketch on XZ plane
sketch18 = doc.addObject("Sketcher::SketchObject", "Sketch017")
body.addObject(sketch18)
sketch18.AttachmentSupport = (doc.XZ_Plane, [""])
sketch18.MapMode = "FlatFace"
sketch18.AttachmentOffset = App.Placement(Vector(0, 0, -20), App.Rotation())
add_polygon(sketch18, [(270, -280), (270, -204), (322, -204), (322, -280)])  # lines 0-3
sketch18.addConstraint([
    Sketcher.Constraint("Vertical", 0),
    Sketcher.Constraint("Horizontal", 1),
    Sketcher.Constraint("Vertical", 2),
    Sketcher.Constraint("Horizontal", 3),
    Sketcher.Constraint("DistanceX", 1, 1, 1, 2, 52.5),
    Sketcher.Constraint("DistanceY", 0, 1, 0, 2, 76.5),
    Sketcher.Constraint("DistanceX", -1, 1, 1, 2, 322.0),
    Sketcher.Constraint("DistanceY", 2, 2, -1, 1, 280.0),
])
pocket5 = doc.addObject("PartDesign::Pocket", "Pocket004")
body.addObject(pocket5)
pocket5.Profile = sketch18
pocket5.Length = 10
pocket5.Reversed = True

# Sketch on YZ plane
sketch19 = doc.addObject("Sketcher::SketchObject", "Sketch018")
body.addObject(sketch19)
sketch19.AttachmentSupport = (doc.YZ_Plane, [""])
sketch19.MapMode = "FlatFace"
sketch19.AttachmentOffset = App.Placement(Vector(0, 0, 322), App.Rotation())
add_polygon(sketch19, [(20, -204), (-20, -273), (-20, -255), (10, -204)])  # lines 0-3
sketch19.addConstraint([
    Sketcher.Constraint("Vertical", 1),
    Sketcher.Constraint("Horizontal", 3),
    Sketcher.Constraint("Parallel", 0, 2),
    Sketcher.Constraint("DistanceX", 3, 1, 3, 2, 10.0),
    Sketcher.Constraint("Angle", 0, Q("-120 deg")),
    Sketcher.Constraint("Distance", 0, 80.0),
    Sketcher.Constraint("DistanceX", 0, 2, -1, 1, 20.0),
    Sketcher.Constraint("DistanceY", 2, 2, -1, 1, 203.5),
])
pad14 = doc.addObject("PartDesign::Pad", "Pad013")
body.addObject(pad14)
pad14.Profile = sketch19
pad14.Length = 52.5
pad14.Reversed = True
doc.recompute()

fillet = doc.addObject("PartDesign::Fillet", "Fillet")
body.addObject(fillet)
fillet.Base = (pad14, edges_at(pad14, [(295.75, 20, -203.5)]))
fillet.Radius = 5

doc.recompute()
